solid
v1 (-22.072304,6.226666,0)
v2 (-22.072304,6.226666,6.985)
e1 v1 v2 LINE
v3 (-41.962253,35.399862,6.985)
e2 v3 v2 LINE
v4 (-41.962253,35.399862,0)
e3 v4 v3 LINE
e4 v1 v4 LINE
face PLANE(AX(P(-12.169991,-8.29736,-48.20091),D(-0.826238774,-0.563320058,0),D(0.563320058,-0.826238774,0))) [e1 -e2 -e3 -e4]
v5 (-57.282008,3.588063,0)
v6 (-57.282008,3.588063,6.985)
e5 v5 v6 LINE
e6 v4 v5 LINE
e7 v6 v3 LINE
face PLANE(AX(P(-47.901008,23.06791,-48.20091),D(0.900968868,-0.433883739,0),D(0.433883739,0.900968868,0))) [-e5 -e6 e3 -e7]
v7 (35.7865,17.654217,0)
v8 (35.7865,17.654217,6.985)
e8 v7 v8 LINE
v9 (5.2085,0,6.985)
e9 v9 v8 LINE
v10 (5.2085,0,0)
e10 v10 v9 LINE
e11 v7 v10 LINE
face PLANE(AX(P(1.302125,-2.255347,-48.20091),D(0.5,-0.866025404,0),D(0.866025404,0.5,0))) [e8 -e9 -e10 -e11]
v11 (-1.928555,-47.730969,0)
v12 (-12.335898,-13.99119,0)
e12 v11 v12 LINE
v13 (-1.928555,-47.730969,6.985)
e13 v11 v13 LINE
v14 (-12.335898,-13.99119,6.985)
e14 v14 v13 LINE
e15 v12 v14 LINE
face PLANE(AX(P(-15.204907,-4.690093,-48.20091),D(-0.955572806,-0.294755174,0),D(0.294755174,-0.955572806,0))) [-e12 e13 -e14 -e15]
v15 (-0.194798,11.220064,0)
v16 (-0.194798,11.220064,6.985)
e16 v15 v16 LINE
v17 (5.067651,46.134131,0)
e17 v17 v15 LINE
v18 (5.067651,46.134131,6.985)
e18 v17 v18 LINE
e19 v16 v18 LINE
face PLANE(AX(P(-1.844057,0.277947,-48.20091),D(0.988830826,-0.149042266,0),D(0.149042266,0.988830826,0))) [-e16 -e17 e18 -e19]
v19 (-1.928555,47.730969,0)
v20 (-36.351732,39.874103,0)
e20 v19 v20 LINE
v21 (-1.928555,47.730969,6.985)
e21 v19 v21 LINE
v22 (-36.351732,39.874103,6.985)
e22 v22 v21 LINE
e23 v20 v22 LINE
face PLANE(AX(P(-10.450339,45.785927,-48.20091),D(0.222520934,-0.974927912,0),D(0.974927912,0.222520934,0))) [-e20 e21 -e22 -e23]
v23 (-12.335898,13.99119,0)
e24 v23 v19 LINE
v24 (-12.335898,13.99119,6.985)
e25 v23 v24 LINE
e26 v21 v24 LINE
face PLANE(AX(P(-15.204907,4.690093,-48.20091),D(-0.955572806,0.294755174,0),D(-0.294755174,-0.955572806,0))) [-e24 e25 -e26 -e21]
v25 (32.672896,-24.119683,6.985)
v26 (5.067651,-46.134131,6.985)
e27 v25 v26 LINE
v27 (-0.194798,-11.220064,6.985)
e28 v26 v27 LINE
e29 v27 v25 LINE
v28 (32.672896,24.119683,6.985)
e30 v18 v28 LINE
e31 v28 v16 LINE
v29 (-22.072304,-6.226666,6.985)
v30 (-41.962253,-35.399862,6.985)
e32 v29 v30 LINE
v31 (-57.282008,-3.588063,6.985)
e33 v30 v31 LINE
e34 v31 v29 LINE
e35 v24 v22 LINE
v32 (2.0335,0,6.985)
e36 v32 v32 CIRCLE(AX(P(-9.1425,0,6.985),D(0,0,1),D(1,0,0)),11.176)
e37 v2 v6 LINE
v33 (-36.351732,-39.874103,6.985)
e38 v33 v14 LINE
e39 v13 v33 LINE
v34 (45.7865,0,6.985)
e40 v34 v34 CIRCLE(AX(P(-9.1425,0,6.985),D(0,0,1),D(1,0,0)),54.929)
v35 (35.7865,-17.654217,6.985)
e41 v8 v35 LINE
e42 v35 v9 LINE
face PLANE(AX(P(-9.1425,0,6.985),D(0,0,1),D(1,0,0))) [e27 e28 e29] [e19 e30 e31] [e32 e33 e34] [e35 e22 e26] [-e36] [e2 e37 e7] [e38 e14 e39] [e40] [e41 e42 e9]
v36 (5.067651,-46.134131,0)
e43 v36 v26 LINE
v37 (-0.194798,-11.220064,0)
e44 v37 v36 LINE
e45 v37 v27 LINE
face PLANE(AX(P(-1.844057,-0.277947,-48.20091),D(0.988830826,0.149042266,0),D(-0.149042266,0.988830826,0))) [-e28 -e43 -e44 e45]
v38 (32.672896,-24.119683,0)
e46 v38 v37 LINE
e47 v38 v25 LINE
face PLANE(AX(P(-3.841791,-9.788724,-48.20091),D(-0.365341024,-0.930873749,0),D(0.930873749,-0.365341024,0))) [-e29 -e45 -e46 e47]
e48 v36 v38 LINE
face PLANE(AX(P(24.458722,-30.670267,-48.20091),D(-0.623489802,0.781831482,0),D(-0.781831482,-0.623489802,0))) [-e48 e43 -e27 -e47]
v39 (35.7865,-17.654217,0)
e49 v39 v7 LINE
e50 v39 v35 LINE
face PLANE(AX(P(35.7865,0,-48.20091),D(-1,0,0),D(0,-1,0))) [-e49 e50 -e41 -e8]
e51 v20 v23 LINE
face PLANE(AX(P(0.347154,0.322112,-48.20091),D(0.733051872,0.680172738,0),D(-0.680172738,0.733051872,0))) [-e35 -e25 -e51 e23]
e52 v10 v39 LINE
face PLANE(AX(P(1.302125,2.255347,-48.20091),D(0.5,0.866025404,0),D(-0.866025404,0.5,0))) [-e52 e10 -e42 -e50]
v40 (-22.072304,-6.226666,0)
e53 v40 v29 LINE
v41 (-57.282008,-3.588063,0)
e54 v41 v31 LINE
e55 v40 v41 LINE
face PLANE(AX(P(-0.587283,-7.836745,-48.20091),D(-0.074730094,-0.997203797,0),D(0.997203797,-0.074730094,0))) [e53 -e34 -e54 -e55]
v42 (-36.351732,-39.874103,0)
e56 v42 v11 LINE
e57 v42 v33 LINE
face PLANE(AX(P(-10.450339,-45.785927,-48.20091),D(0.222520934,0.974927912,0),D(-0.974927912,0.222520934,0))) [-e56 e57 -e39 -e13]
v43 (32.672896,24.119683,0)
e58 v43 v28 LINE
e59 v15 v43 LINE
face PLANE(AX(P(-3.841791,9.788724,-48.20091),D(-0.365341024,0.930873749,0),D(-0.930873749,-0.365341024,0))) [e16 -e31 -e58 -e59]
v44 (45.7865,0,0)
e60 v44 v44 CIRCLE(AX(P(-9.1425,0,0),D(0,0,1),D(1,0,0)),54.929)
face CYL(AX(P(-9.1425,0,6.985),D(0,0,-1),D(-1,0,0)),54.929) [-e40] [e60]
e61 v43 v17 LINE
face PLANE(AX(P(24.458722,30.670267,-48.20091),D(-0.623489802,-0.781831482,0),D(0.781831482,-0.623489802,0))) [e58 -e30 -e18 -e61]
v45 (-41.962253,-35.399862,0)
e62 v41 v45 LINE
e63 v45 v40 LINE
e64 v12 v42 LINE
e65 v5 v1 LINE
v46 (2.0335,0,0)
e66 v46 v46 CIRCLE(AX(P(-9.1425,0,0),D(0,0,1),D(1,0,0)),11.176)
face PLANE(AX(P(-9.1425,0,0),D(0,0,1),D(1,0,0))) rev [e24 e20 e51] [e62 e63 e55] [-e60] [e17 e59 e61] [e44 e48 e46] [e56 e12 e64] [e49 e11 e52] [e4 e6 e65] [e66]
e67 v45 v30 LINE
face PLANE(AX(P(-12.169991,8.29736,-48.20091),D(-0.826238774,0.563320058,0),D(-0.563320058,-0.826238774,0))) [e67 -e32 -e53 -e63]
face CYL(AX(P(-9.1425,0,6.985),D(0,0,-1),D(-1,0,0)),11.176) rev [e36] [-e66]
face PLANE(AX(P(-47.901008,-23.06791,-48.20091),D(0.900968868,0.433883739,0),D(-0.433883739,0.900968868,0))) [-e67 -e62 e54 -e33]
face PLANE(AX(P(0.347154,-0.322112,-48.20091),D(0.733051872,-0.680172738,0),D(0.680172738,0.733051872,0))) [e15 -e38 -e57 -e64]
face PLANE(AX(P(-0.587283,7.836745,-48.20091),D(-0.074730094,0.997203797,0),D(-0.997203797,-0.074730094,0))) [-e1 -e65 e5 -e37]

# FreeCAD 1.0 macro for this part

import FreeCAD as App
import Part
import Sketcher
from FreeCAD import Vector
Q = App.Units.Quantity


def add_polygon(sketch, points):
    """Adds a closed chain of lines whose ends are joined by coincident constraints."""
    first, n = sketch.GeometryCount, len(points)
    for a, b in zip(points, points[1:] + points[:1]):
        sketch.addGeometry(Part.LineSegment(App.Vector(*a, 0), App.Vector(*b, 0)), False)
    for i in range(n):
        sketch.addConstraint(Sketcher.Constraint("Coincident", first + i, 2, first + (i + 1) % n, 1))

doc = App.newDocument("Part")
body = doc.addObject("PartDesign::Body", "Body")

# Sketch on XY plane
sketch1 = doc.addObject("Sketcher::SketchObject", "Sketch")
body.addObject(sketch1)
sketch1.AttachmentSupport = (doc.XY_Plane, [""])
sketch1.MapMode = "FlatFace"
sketch1.addGeometry([
    Part.Circle(Vector(-9, 0, 0), Vector(0, 0, 1), 55),
    Part.Circle(Vector(-9, 0, 0), Vector(0, 0, 1), 11),
], False)
sketch1.addConstraint([
    Sketcher.Constraint("Coincident", 1, 3, 0, 3),
    Sketcher.Constraint("PointOnObject", 0, 3, -1),
    Sketcher.Constraint("Diameter", 1, Q("0.88 in")),
    Sketcher.Constraint("Diameter", 0, Q("109.858 mm")),
    Sketcher.Constraint("DistanceX", 0, 3, -1, 1, Q("9.1425 mm")),
])
pad1 = doc.addObject("PartDesign::Pad", "Pad")
body.addObject(pad1)
pad1.Profile = sketch1
pad1.Length = Q("0.275 in")

# Sketch on XY plane
sketch2 = doc.addObject("Sketcher::SketchObject", "Sketch001")
body.addObject(sketch2)
sketch2.AttachmentSupport = (doc.XY_Plane, [""])
sketch2.MapMode = "FlatFace"
sketch2.AttachmentOffset = App.Placement(Vector(0, 0, 0.275 * 25.4), App.Rotation())
add_polygon(sketch2, [(5, 0), (36, -18), (36, 18)])  # lines 0-2
add_polygon(sketch2, [(0, -11), (5, -46), (33, -24)])  # lines 3-5
add_polygon(sketch2, [(-12, -14), (-36, -40), (-2, -48)])  # lines 6-8
add_polygon(sketch2, [(-22, -6), (-57, -4), (-42, -35)])  # lines 9-11
add_polygon(sketch2, [(-22, 6), (-42, 35), (-57, 4)])  # lines 12-14
add_polygon(sketch2, [(-12, 14), (-2, 48), (-36, 40)])  # lines 15-17
add_polygon(sketch2, [(0, 11), (33, 24), (5, 46)])  # lines 18-20
sketch2.addConstraint([
    Sketcher.Constraint("Vertical", 1),
    Sketcher.Constraint("Symmetric", 10, 2, 12, 2, -1),
    Sketcher.Constraint("Symmetric", 9, 2, 13, 2, -1),
    Sketcher.Constraint("Symmetric", 11, 2, 14, 2, -1),
    Sketcher.Constraint("Symmetric", 7, 2, 15, 2, -1),
    Sketcher.Constraint("Symmetric", 6, 2, 16, 2, -1),
    Sketcher.Constraint("Symmetric", 8, 2, 17, 2, -1),
    Sketcher.Constraint("Symmetric", 4, 2, 18, 2, -1),
    Sketcher.Constraint("Symmetric", 3, 2, 19, 2, -1),
    Sketcher.Constraint("Symmetric", 5, 2, 20, 2, -1),
    Sketcher.Constraint("PointOnObject", 2, 2, -1),
    Sketcher.Constraint("Equal", 0, 2),
    Sketcher.Constraint("Equal", 2, 3),
    Sketcher.Constraint("Equal", 3, 4),
    Sketcher.Constraint("Equal", 4, 5),
    Sketcher.Constraint("Equal", 5, 6),
    Sketcher.Constraint("Equal", 6, 7),
    Sketcher.Constraint("Equal", 7, 8),
    Sketcher.Constraint("Equal", 8, 9),
    Sketcher.Constraint("Equal", 9, 10),
    Sketcher.Constraint("Equal", 10, 11),
    Sketcher.Constraint("Angle", 0, Q("-30 deg")),
    Sketcher.Constraint("DistanceX", -1, 1, 0, 2, Q("35.7865 mm")),
    Sketcher.Constraint("DistanceX", -1, 1, 2, 2, Q("5.2085 mm")),
    Sketcher.Constraint("DistanceY", 4, 2, 1, 2, Q("41.773899 mm")),
    Sketcher.Constraint("DistanceX", 8, 2, 5, 2, Q("12.1411 mm")),
    Sketcher.Constraint("DistanceY", 5, 2, 9, 2, Q("7.632001 mm")),
    Sketcher.Constraint("DistanceY", 10, 2, 9, 2, Q("31.811799 mm")),
    Sketcher.Constraint("DistanceX", 10, 2, 7, 2, Q("40.033698 mm")),
    Sketcher.Constraint("DistanceX", -1, 1, 3, 2, Q("5.067651 mm")),
    Sketcher.Constraint("DistanceY", 3, 2, -1, 1, Q("46.134131 mm")),
    Sketcher.Constraint("DistanceX", 6, 2, -1, 1, Q("36.351732 mm")),
    Sketcher.Constraint("DistanceY", 7, 2, -1, 1, Q("47.730969 mm")),
])
pocket1 = doc.addObject("PartDesign::Pocket", "Pocket")
body.addObject(pocket1)
pocket1.Profile = sketch2
pocket1.Length = Q("0.275 in")

doc.recompute()
